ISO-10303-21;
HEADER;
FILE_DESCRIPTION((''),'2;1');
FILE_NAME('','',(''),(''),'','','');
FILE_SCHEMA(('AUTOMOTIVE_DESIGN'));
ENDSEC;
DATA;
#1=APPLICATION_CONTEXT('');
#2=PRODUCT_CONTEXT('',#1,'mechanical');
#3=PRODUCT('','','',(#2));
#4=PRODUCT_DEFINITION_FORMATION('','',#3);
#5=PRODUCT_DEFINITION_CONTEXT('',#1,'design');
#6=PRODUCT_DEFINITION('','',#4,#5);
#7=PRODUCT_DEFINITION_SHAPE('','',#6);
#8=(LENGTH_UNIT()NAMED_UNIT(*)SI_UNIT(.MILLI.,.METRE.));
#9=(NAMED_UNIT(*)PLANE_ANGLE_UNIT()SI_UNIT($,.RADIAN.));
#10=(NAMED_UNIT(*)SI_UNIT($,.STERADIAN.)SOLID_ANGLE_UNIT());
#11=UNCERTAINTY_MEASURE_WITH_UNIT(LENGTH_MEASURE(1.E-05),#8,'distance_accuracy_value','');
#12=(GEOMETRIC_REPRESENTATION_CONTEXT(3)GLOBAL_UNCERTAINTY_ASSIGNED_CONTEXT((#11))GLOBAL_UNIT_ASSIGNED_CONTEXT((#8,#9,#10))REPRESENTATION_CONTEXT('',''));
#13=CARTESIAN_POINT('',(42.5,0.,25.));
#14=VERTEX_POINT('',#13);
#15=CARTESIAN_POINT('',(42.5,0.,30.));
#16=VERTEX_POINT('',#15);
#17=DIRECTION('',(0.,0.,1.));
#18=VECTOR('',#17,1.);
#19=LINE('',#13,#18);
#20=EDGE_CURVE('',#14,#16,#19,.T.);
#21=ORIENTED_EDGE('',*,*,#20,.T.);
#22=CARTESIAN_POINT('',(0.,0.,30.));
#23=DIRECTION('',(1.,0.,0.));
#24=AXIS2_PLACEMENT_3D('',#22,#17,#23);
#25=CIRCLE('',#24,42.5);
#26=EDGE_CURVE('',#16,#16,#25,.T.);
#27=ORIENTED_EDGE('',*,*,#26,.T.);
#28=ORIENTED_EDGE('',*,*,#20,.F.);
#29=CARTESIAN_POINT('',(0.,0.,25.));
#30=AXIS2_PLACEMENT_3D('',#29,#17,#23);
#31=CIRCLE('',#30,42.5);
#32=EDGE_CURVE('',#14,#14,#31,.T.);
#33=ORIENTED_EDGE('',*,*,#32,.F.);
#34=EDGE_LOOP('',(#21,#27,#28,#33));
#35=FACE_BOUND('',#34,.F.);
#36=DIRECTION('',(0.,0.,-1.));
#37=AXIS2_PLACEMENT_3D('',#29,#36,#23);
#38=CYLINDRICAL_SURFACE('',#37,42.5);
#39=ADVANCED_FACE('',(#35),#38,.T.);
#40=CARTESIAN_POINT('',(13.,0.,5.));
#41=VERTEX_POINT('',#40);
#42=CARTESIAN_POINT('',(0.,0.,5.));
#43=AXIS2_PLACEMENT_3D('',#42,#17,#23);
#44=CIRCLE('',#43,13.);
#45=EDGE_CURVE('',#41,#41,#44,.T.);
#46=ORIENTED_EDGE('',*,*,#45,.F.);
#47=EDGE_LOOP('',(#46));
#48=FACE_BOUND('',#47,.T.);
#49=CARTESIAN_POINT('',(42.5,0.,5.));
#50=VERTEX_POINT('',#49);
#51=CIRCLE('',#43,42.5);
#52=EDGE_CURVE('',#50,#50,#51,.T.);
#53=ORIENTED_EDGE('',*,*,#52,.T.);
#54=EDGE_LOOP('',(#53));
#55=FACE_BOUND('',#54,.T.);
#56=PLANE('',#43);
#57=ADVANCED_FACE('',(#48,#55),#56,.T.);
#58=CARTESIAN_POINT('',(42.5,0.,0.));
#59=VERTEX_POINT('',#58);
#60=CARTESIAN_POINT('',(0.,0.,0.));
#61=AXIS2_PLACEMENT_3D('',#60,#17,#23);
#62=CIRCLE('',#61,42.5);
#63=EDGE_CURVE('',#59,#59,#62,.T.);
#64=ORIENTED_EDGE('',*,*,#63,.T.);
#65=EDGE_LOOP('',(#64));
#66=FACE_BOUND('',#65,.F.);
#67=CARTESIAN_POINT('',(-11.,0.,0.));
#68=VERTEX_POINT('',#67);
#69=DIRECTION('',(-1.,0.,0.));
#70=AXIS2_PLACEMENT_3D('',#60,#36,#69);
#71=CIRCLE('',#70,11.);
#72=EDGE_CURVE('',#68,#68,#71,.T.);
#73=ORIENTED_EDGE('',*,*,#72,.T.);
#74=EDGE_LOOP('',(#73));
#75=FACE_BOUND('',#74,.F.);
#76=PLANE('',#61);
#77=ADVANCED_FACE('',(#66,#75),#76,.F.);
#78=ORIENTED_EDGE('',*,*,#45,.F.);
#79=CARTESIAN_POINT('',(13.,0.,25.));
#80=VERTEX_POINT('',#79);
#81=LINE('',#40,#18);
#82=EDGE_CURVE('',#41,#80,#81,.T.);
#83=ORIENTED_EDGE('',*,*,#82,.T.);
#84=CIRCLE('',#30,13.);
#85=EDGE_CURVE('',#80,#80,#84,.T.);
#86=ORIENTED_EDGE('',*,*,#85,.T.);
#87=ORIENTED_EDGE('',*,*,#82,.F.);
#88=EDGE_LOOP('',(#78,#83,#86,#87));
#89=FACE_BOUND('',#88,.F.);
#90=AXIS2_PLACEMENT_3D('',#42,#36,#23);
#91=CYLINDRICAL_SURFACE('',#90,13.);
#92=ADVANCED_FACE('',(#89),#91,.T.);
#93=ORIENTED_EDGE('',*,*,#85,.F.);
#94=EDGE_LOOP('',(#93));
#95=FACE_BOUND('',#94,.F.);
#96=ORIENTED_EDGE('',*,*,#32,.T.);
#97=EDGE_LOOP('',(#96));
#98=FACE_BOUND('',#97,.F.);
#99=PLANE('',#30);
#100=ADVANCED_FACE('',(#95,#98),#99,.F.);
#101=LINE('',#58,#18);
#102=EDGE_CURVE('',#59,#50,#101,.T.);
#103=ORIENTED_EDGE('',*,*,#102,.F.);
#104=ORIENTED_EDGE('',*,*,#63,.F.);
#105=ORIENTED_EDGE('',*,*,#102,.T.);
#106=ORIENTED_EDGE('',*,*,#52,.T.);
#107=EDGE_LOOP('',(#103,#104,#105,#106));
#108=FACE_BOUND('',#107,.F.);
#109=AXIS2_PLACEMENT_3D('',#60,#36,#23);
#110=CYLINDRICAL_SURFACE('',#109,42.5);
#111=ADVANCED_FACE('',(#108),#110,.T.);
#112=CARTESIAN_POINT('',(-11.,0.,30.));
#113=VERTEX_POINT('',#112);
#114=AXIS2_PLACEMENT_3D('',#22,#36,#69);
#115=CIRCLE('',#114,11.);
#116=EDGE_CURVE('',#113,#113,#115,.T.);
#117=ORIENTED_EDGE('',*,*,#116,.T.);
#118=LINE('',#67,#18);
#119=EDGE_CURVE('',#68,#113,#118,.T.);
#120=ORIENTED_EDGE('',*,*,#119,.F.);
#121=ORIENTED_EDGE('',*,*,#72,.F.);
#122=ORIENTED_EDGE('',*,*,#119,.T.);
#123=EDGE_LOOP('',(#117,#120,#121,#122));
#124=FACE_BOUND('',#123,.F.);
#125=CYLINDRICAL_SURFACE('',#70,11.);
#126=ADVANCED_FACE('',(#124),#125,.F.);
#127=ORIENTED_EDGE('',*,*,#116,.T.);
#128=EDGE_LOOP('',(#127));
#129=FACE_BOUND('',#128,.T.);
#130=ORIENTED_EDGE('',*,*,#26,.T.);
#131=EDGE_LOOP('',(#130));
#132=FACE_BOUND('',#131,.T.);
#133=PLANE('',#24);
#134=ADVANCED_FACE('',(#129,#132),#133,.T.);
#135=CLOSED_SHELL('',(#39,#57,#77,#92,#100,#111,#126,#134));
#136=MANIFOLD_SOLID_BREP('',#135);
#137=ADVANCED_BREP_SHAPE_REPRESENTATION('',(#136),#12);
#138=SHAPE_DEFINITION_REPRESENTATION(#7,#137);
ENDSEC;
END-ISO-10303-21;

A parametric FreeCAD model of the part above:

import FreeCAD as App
import Part
import Sketcher

V = App.Vector

doc = App.newDocument("Part")
body = doc.addObject("PartDesign::Body", "Body")

sketch1 = body.newObject("Sketcher::SketchObject", "Sketch")
sketch1.AttachmentSupport = (doc.getObject("XY_Plane"), [""])
sketch1.MapMode = "FlatFace"
sketch1.addGeometry(Part.Circle(V(0, 0, 0), V(0, 0, 1), 42.5), False)
sketch1.addConstraint(Sketcher.Constraint("Coincident", 0, 3, -1, 1))
sketch1.addConstraint(Sketcher.Constraint("Diameter", 0, 85.0))
pad1 = body.newObject("PartDesign::Pad", "Pad")
pad1.Profile = sketch1
pad1.Length = 5

sketch2 = body.newObject("Sketcher::SketchObject", "Sketch001")
sketch2.AttachmentSupport = (doc.getObject("XY_Plane"), [""])
sketch2.MapMode = "FlatFace"
sketch2.AttachmentOffset = App.Placement(V(0, 0, 5), App.Rotation())
sketch2.addGeometry(Part.Circle(V(0, 0, 0), V(0, 0, 1), 13), False)
sketch2.addConstraint(Sketcher.Constraint("Coincident", 0, 3, -1, 1))
sketch2.addConstraint(Sketcher.Constraint("Diameter", 0, 26.0))
pad2 = body.newObject("PartDesign::Pad", "Pad001")
pad2.Profile = sketch2
pad2.Length = 20

sketch3 = body.newObject("Sketcher::SketchObject", "Sketch002")
sketch3.AttachmentSupport = (doc.getObject("XY_Plane"), [""])
sketch3.MapMode = "FlatFace"
sketch3.AttachmentOffset = App.Placement(V(0, 0, 25), App.Rotation())
sketch3.addGeometry(Part.Circle(V(0, 0, 0), V(0, 0, 1), 42.5), False)
sketch3.addConstraint(Sketcher.Constraint("Coincident", 0, 3, -1, 1))
sketch3.addConstraint(Sketcher.Constraint("Diameter", 0, 85.0))
pad3 = body.newObject("PartDesign::Pad", "Pad002")
pad3.Profile = sketch3
pad3.Length = 5

sketch4 = body.newObject("Sketcher::SketchObject", "Sketch003")
sketch4.AttachmentSupport = (doc.getObject("XY_Plane"), [""])
sketch4.MapMode = "FlatFace"
sketch4.addGeometry(Part.Circle(V(0, 0, 0), V(0, 0, 1), 11), False)
sketch4.addConstraint(Sketcher.Constraint("Coincident", 0, 3, -1, 1))
sketch4.addConstraint(Sketcher.Constraint("Diameter", 0, 22.0))
pocket1 = body.newObject("PartDesign::Pocket", "Pocket")
pocket1.Profile = sketch4
pocket1.Type = "ThroughAll"
pocket1.Reversed = True

doc.recompute()
